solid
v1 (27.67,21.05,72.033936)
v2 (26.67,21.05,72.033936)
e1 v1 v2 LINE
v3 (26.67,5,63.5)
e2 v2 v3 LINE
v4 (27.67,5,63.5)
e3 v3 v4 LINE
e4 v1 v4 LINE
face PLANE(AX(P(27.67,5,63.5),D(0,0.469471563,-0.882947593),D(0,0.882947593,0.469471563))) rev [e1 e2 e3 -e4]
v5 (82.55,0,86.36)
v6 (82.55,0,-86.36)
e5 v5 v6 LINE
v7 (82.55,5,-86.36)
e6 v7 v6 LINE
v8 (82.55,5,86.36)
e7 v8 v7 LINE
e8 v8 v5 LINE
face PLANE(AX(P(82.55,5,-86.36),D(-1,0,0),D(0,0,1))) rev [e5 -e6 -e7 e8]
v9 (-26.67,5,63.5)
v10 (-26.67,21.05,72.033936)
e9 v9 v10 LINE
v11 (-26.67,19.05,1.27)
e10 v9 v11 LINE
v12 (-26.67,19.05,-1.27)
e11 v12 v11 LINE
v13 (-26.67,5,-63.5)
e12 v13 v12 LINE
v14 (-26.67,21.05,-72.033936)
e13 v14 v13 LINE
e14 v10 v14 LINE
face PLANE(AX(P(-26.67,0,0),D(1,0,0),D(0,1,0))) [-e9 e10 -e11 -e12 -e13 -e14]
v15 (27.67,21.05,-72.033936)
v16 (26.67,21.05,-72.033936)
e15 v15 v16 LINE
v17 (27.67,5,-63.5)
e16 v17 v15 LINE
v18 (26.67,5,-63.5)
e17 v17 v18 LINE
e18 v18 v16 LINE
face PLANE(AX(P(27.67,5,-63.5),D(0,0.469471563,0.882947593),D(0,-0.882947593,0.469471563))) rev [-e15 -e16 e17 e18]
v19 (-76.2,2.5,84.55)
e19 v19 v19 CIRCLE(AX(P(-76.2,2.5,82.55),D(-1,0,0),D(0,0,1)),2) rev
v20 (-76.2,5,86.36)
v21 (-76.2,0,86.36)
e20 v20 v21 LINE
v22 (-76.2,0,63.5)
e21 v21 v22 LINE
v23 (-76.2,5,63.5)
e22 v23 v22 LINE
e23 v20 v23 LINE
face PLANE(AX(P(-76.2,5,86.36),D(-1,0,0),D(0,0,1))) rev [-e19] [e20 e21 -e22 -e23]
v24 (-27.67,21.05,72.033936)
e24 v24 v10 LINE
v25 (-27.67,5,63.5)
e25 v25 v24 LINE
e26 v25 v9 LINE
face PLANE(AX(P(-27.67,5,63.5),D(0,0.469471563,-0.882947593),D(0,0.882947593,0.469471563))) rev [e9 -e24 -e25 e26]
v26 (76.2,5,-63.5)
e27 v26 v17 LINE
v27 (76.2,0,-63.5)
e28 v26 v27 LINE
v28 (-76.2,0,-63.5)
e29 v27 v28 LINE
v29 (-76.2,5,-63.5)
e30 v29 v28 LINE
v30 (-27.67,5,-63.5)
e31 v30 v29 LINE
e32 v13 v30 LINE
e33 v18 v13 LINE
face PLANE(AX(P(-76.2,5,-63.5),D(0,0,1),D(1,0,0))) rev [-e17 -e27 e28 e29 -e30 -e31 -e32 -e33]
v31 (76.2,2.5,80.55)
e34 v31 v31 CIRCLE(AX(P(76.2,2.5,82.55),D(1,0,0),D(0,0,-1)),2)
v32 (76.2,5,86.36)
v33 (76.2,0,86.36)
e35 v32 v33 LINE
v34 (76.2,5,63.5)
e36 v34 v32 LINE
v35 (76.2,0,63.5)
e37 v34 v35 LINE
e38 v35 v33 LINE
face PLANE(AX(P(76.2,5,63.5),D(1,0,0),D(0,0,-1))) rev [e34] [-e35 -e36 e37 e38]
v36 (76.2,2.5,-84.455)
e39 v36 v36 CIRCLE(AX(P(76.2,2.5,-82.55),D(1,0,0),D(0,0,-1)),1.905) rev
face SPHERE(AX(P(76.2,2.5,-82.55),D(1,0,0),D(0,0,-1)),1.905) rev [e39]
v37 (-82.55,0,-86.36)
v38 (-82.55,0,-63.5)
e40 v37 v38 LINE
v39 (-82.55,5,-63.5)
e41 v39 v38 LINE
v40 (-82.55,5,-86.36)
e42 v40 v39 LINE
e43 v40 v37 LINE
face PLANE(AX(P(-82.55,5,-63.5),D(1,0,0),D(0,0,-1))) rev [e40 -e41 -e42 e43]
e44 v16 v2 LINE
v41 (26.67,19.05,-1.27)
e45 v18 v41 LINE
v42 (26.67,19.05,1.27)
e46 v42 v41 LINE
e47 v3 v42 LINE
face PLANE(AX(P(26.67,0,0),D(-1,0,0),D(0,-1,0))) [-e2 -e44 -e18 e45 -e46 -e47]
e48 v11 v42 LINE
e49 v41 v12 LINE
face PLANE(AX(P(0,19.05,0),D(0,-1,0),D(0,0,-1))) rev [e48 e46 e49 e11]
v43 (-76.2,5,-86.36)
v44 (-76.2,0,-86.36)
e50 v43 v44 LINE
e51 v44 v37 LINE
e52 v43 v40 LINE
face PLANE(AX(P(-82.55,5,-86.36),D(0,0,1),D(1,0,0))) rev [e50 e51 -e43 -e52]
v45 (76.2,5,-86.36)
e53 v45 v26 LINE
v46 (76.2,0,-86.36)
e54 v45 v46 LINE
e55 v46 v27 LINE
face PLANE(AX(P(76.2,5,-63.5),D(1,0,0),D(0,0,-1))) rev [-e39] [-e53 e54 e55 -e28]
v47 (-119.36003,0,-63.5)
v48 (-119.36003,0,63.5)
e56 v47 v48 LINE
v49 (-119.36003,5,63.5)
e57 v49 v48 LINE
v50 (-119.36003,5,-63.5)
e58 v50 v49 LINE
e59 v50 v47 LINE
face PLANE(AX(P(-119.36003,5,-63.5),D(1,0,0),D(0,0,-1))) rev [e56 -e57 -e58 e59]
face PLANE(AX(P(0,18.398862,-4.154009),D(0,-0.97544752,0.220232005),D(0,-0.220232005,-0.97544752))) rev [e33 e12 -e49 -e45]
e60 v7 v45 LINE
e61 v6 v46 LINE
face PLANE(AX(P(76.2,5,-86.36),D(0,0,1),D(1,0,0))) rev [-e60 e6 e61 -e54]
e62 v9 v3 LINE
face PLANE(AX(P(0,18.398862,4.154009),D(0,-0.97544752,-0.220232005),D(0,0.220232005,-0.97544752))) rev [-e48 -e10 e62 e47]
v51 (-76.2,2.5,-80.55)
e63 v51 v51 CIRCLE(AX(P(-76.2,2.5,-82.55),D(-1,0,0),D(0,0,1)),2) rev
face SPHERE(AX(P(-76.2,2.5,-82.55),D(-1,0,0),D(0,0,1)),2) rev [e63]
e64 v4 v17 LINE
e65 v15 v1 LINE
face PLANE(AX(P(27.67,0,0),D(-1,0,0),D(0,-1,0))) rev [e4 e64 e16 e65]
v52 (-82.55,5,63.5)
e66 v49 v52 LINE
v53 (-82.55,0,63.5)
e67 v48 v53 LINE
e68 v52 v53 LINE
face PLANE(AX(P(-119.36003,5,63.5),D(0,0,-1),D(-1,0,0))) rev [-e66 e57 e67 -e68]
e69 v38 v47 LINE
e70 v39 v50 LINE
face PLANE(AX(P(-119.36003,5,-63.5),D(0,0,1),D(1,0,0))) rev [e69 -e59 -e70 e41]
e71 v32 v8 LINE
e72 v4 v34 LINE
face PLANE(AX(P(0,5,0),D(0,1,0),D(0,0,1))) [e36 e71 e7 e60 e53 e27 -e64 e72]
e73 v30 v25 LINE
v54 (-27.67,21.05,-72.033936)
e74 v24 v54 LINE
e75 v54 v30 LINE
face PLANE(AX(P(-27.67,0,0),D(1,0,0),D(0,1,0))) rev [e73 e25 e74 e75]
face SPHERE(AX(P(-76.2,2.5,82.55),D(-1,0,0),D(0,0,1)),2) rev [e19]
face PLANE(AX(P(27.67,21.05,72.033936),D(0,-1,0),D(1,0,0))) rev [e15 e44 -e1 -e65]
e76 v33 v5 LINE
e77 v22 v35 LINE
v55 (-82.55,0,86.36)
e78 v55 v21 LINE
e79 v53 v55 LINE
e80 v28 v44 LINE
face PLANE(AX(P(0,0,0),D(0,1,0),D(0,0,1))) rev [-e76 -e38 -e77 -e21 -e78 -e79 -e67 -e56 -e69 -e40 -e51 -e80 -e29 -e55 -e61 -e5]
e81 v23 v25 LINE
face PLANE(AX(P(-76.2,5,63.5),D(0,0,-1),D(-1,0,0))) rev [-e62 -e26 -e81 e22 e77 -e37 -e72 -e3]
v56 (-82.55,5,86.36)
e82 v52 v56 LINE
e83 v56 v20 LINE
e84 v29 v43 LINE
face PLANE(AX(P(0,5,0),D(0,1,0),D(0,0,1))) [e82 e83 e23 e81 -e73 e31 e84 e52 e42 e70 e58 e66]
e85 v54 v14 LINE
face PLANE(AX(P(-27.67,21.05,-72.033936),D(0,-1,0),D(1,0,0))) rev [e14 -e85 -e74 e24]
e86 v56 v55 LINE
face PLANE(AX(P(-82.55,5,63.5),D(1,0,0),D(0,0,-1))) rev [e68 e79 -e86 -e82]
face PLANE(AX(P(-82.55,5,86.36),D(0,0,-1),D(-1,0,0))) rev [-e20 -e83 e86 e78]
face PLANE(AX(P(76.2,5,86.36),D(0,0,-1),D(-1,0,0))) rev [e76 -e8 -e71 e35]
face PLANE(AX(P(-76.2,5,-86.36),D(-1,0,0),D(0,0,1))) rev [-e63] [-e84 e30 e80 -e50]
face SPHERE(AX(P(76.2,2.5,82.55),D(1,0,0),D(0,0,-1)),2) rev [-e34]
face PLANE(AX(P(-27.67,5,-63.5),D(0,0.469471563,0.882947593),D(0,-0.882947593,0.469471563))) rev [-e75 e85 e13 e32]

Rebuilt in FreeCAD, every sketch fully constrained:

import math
import FreeCAD as App
import Part
import Sketcher
Q = App.Units.Quantity

doc = App.newDocument("Part")
body = doc.addObject("PartDesign::Body", "Body")

sketch1 = body.newObject("Sketcher::SketchObject", "Sketch")
sketch1.AttachmentSupport = (doc.getObject("XZ_Plane"), [""])
sketch1.MapMode = "FlatFace"
sketch1.addGeometry([
    Part.LineSegment(App.Vector(-82.55, 63.5, 0), App.Vector(-82.55, 86.36, 0)),
    Part.LineSegment(App.Vector(-82.55, 86.36, 0), App.Vector(-76.2, 86.36, 0)),
    Part.LineSegment(App.Vector(-76.2, 86.36, 0), App.Vector(-76.2, 63.5, 0)),
    Part.LineSegment(App.Vector(-76.2, 63.5, 0), App.Vector(76.2, 63.5, 0)),
    Part.LineSegment(App.Vector(76.2, 63.5, 0), App.Vector(76.2, 86.36, 0)),
    Part.LineSegment(App.Vector(76.2, 86.36, 0), App.Vector(82.55, 86.36, 0)),
    Part.LineSegment(App.Vector(82.55, 86.36, 0), App.Vector(82.55, -86.36, 0)),
    Part.LineSegment(App.Vector(82.55, -86.36, 0), App.Vector(76.2, -86.36, 0)),
    Part.LineSegment(App.Vector(76.2, -86.36, 0), App.Vector(76.2, -63.5, 0)),
    Part.LineSegment(App.Vector(76.2, -63.5, 0), App.Vector(-76.2, -63.5, 0)),
    Part.LineSegment(App.Vector(-76.2, -63.5, 0), App.Vector(-76.2, -86.36, 0)),
    Part.LineSegment(App.Vector(-76.2, -86.36, 0), App.Vector(-82.55, -86.36, 0)),
    Part.LineSegment(App.Vector(-82.55, -86.36, 0), App.Vector(-82.55, -63.5, 0)),
    Part.LineSegment(App.Vector(-82.55, -63.5, 0), App.Vector(-119.36003, -63.5, 0)),
    Part.LineSegment(App.Vector(-119.36003, -63.5, 0), App.Vector(-119.36003, 63.5, 0)),
    Part.LineSegment(App.Vector(-119.36003, 63.5, 0), App.Vector(-82.55, 63.5, 0)),
], False)
sketch1.addConstraint([
    Sketcher.Constraint("Coincident", 0, 2, 1, 1),
    Sketcher.Constraint("Coincident", 1, 2, 2, 1),
    Sketcher.Constraint("Coincident", 2, 2, 3, 1),
    Sketcher.Constraint("Coincident", 3, 2, 4, 1),
    Sketcher.Constraint("Coincident", 4, 2, 5, 1),
    Sketcher.Constraint("Coincident", 5, 2, 6, 1),
    Sketcher.Constraint("Coincident", 6, 2, 7, 1),
    Sketcher.Constraint("Coincident", 7, 2, 8, 1),
    Sketcher.Constraint("Coincident", 8, 2, 9, 1),
    Sketcher.Constraint("Coincident", 9, 2, 10, 1),
    Sketcher.Constraint("Coincident", 10, 2, 11, 1),
    Sketcher.Constraint("Coincident", 11, 2, 12, 1),
    Sketcher.Constraint("Coincident", 12, 2, 13, 1),
    Sketcher.Constraint("Coincident", 13, 2, 14, 1),
    Sketcher.Constraint("Coincident", 14, 2, 15, 1),
    Sketcher.Constraint("Coincident", 15, 2, 0, 1),
    Sketcher.Constraint("Vertical", 0),
    Sketcher.Constraint("Horizontal", 1),
    Sketcher.Constraint("Vertical", 2),
    Sketcher.Constraint("Horizontal", 3),
    Sketcher.Constraint("Vertical", 4),
    Sketcher.Constraint("Horizontal", 5),
    Sketcher.Constraint("Vertical", 6),
    Sketcher.Constraint("Horizontal", 7),
    Sketcher.Constraint("Vertical", 8),
    Sketcher.Constraint("Horizontal", 9),
    Sketcher.Constraint("Vertical", 10),
    Sketcher.Constraint("Horizontal", 11),
    Sketcher.Constraint("Vertical", 12),
    Sketcher.Constraint("Horizontal", 13),
    Sketcher.Constraint("Vertical", 14),
    Sketcher.Constraint("Horizontal", 15),
    Sketcher.Constraint("Symmetric", 0, 2, 6, 2, -1, 1),
    Sketcher.Constraint("Symmetric", 2, 2, 8, 2, -1, 1),
    Sketcher.Constraint("Symmetric", 4, 2, 10, 2, -1, 1),
    Sketcher.Constraint("Symmetric", 1, 2, 4, 2, -2),
    Sketcher.Constraint("Symmetric", 12, 2, 15, 2, -1),
    Sketcher.Constraint("Horizontal", 9, 2, 12, 2),
    Sketcher.Constraint("DistanceX", 3, 1, 3, 2, Q("6 in")),
    Sketcher.Constraint("DistanceY", 14, 1, 14, 2, Q("5 in")),
    Sketcher.Constraint("DistanceY", 0, 1, 0, 2, Q("0.9 in")),
    Sketcher.Constraint("DistanceX", 1, 1, 1, 2, Q("0.25 in")),
    Sketcher.Constraint("DistanceX", 13, 2, 13, 1, 36.81003),
])
pad1 = body.newObject("PartDesign::Pad", "Pad")
pad1.Profile = sketch1
pad1.Length = 5
pad1.Reversed = True

sketch2 = body.newObject("Sketcher::SketchObject", "Sketch001")
sketch2.AttachmentSupport = (doc.getObject("YZ_Plane"), [""])
sketch2.MapMode = "FlatFace"
sketch2.AttachmentOffset = App.Placement(App.Vector(0, 0, -3 * 25.4), App.Rotation())
sketch2.addGeometry([
    Part.LineSegment(App.Vector(4.5, 82.55, 0), App.Vector(0.5, 82.55, 0)),
    Part.ArcOfCircle(Part.Circle(App.Vector(2.5, 82.55, 0), App.Vector(0, 0, 1), 2), math.radians(180), math.radians(360)),
], False)
sketch2.addGeometry(Part.LineSegment(App.Vector(4.5, 82.55, 0), App.Vector(0.5, 82.55, 0)), True)
sketch2.addConstraint([
    Sketcher.Constraint("Coincident", 0, 1, 1, 2),
    Sketcher.Constraint("Coincident", 1, 1, 0, 2),
    Sketcher.Constraint("Horizontal", 0),
    Sketcher.Constraint("Horizontal", 2),
    Sketcher.Constraint("Coincident", 2, 1, 0, 1),
    Sketcher.Constraint("Horizontal", 1, 3, 0, 1),
    Sketcher.Constraint("Equal", 0, 2),
    Sketcher.Constraint("DistanceY", -1, 1, 1, 3, Q("3.25 in")),
    Sketcher.Constraint("Radius", 1, 2.0),
    Sketcher.Constraint("DistanceX", -1, 1, 1, 3, 2.5),
])
groove = body.newObject("PartDesign::Groove", "Groove")
groove.Profile = sketch2
groove.ReferenceAxis = (sketch2, ["Axis0"])
groove.Angle = 360

sketch3 = body.newObject("Sketcher::SketchObject", "Sketch002")
sketch3.AttachmentSupport = (doc.getObject("YZ_Plane"), [""])
sketch3.MapMode = "FlatFace"
sketch3.AttachmentOffset = App.Placement(App.Vector(0, 0, 3 * 25.4), App.Rotation())
sketch3.addGeometry([
    Part.LineSegment(App.Vector(4.5, 82.55, 0), App.Vector(0.5, 82.55, 0)),
    Part.ArcOfCircle(Part.Circle(App.Vector(2.5, 82.55, 0), App.Vector(0, 0, 1), 2), math.radians(0), math.radians(180)),
], False)
sketch3.addGeometry(Part.LineSegment(App.Vector(0.5, 82.55, 0), App.Vector(4.5, 82.55, 0)), True)
sketch3.addConstraint([
    Sketcher.Constraint("Coincident", 0, 1, 1, 1),
    Sketcher.Constraint("Coincident", 1, 2, 0, 2),
    Sketcher.Constraint("Horizontal", 0),
    Sketcher.Constraint("Horizontal", 2),
    Sketcher.Constraint("Coincident", 2, 1, 1, 2),
    Sketcher.Constraint("Horizontal", 1, 3, 0, 1),
    Sketcher.Constraint("Equal", 0, 2),
    Sketcher.Constraint("DistanceY", -1, 1, 1, 3, Q("3.25 in")),
    Sketcher.Constraint("Radius", 1, 2.0),
    Sketcher.Constraint("DistanceX", -1, 1, 1, 3, 2.5),
])
groove2 = body.newObject("PartDesign::Groove", "Groove001")
groove2.Profile = sketch3
groove2.ReferenceAxis = (sketch3, ["Axis0"])
groove2.Angle = 360

sketch4 = body.newObject("Sketcher::SketchObject", "Sketch003")
sketch4.AttachmentSupport = (doc.getObject("XZ_Plane"), [""])
sketch4.MapMode = "FlatFace"
sketch4.AttachmentOffset = App.Placement(App.Vector(0, 0, -5), App.Rotation())
sketch4.addGeometry([
    Part.LineSegment(App.Vector(-26.67, 63.5, 0), App.Vector(26.67, 63.5, 0)),
    Part.LineSegment(App.Vector(26.67, 63.5, 0), App.Vector(26.67, -63.5, 0)),
    Part.LineSegment(App.Vector(26.67, -63.5, 0), App.Vector(-26.67, -63.5, 0)),
    Part.LineSegment(App.Vector(-26.67, -63.5, 0), App.Vector(-26.67, 63.5, 0)),
], False)
sketch4.addConstraint([
    Sketcher.Constraint("Coincident", 0, 2, 1, 1),
    Sketcher.Constraint("Coincident", 1, 2, 2, 1),
    Sketcher.Constraint("Coincident", 2, 2, 3, 1),
    Sketcher.Constraint("Coincident", 3, 2, 0, 1),
    Sketcher.Constraint("Horizontal", 0),
    Sketcher.Constraint("Vertical", 1),
    Sketcher.Constraint("Horizontal", 2),
    Sketcher.Constraint("Vertical", 3),
    Sketcher.Constraint("Symmetric", 0, 2, 2, 2, -1, 1),
    Sketcher.Constraint("DistanceY", 1, 2, 1, 1, Q("5 in")),
    Sketcher.Constraint("DistanceX", 0, 1, 0, 2, Q("2.1 in")),
])

sketch5 = body.newObject("Sketcher::SketchObject", "Sketch004")
sketch5.AttachmentSupport = (doc.getObject("XZ_Plane"), [""])
sketch5.MapMode = "FlatFace"
sketch5.AttachmentOffset = App.Placement(App.Vector(0, 0, -0.75 * 25.4), App.Rotation())
sketch5.addGeometry([
    Part.LineSegment(App.Vector(26.67, -1.27, 0), App.Vector(-26.67, -1.27, 0)),
    Part.LineSegment(App.Vector(-26.67, -1.27, 0), App.Vector(-26.67, 1.27, 0)),
    Part.LineSegment(App.Vector(-26.67, 1.27, 0), App.Vector(26.67, 1.27, 0)),
    Part.LineSegment(App.Vector(26.67, 1.27, 0), App.Vector(26.67, -1.27, 0)),
], False)
sketch5.addConstraint([
    Sketcher.Constraint("Coincident", 0, 2, 1, 1),
    Sketcher.Constraint("Coincident", 1, 2, 2, 1),
    Sketcher.Constraint("Coincident", 2, 2, 3, 1),
    Sketcher.Constraint("Coincident", 3, 2, 0, 1),
    Sketcher.Constraint("Horizontal", 0),
    Sketcher.Constraint("Vertical", 1),
    Sketcher.Constraint("Horizontal", 2),
    Sketcher.Constraint("Vertical", 3),
    Sketcher.Constraint("Symmetric", 0, 2, 2, 2, -1, 1),
    Sketcher.Constraint("DistanceX", 0, 2, 0, 1, Q("2.1 in")),
    Sketcher.Constraint("DistanceY", 1, 1, 1, 2, Q("0.1 in")),
])

additiveloft = body.newObject("PartDesign::AdditiveLoft", "AdditiveLoft")
additiveloft.Profile = sketch4
additiveloft.Sections = [sketch5]

sketch6 = body.newObject("Sketcher::SketchObject", "Sketch005")
sketch6.AttachmentSupport = (doc.getObject("YZ_Plane"), [""])
sketch6.MapMode = "FlatFace"
sketch6.AttachmentOffset = App.Placement(App.Vector(0, 0, -3 * 25.4), App.Rotation())
sketch6.addGeometry([
    Part.LineSegment(App.Vector(4.5, -82.55, 0), App.Vector(0.5, -82.55, 0)),
    Part.ArcOfCircle(Part.Circle(App.Vector(2.5, -82.55, 0), App.Vector(0, 0, 1), 2), math.radians(180), math.radians(360)),
], False)
sketch6.addGeometry(Part.LineSegment(App.Vector(4.5, -82.55, 0), App.Vector(0.5, -82.55, 0)), True)
sketch6.addConstraint([
    Sketcher.Constraint("Coincident", 0, 1, 1, 2),
    Sketcher.Constraint("Coincident", 1, 1, 0, 2),
    Sketcher.Constraint("Horizontal", 0),
    Sketcher.Constraint("Horizontal", 2),
    Sketcher.Constraint("Coincident", 2, 1, 0, 1),
    Sketcher.Constraint("Horizontal", 1, 3, 0, 1),
    Sketcher.Constraint("Equal", 0, 2),
    Sketcher.Constraint("DistanceY", 1, 3, -1, 1, Q("3.25 in")),
    Sketcher.Constraint("Radius", 1, 2.0),
    Sketcher.Constraint("DistanceX", -1, 1, 1, 3, 2.5),
])
groove3 = body.newObject("PartDesign::Groove", "Groove002")
groove3.Profile = sketch6
groove3.ReferenceAxis = (sketch6, ["Axis0"])
groove3.Angle = 360

sketch7 = body.newObject("Sketcher::SketchObject", "Sketch006")
sketch7.AttachmentSupport = (doc.getObject("YZ_Plane"), [""])
sketch7.MapMode = "FlatFace"
sketch7.AttachmentOffset = App.Placement(App.Vector(0, 0, 3 * 25.4), App.Rotation())
sketch7.addGeometry([
    Part.LineSegment(App.Vector(4.405, -82.55, 0), App.Vector(0.595, -82.55, 0)),
    Part.ArcOfCircle(Part.Circle(App.Vector(2.5, -82.55, 0), App.Vector(0, 0, 1), 1.905), math.radians(0), math.radians(180)),
], False)
sketch7.addGeometry(Part.LineSegment(App.Vector(4.405, -82.55, 0), App.Vector(0.595, -82.55, 0)), True)
sketch7.addConstraint([
    Sketcher.Constraint("Coincident", 0, 1, 1, 1),
    Sketcher.Constraint("Coincident", 1, 2, 0, 2),
    Sketcher.Constraint("Horizontal", 0),
    Sketcher.Constraint("Horizontal", 2),
    Sketcher.Constraint("Coincident", 2, 1, 0, 1),
    Sketcher.Constraint("Horizontal", 1, 3, 0, 1),
    Sketcher.Constraint("Equal", 0, 2),
    Sketcher.Constraint("Radius", 1, Q("0.075 in")),
    Sketcher.Constraint("DistanceY", 1, 3, -1, 1, Q("3.25 in")),
    Sketcher.Constraint("DistanceX", -1, 1, 1, 3, 2.5),
])
groove4 = body.newObject("PartDesign::Groove", "Groove003")
groove4.Profile = sketch7
groove4.ReferenceAxis = (sketch7, ["Axis0"])
groove4.Angle = 360

sketch8 = body.newObject("Sketcher::SketchObject", "Sketch007")
sketch8.AttachmentSupport = (doc.getObject("YZ_Plane"), [""])
sketch8.MapMode = "FlatFace"
sketch8.AttachmentOffset = App.Placement(App.Vector(0, 0, 1.05 * 25.4), App.Rotation())
sketch8.addGeometry([
    Part.LineSegment(App.Vector(5, 63.5, 0), App.Vector(5, -63.5, 0)),
    Part.LineSegment(App.Vector(5, -63.5, 0), App.Vector(21.05, -72.033936, 0)),
    Part.LineSegment(App.Vector(21.05, -72.033936, 0), App.Vector(21.05, 72.033936, 0)),
    Part.LineSegment(App.Vector(21.05, 72.033936, 0), App.Vector(5, 63.5, 0)),
], False)
sketch8.addConstraint([
    Sketcher.Constraint("Coincident", 0, 2, 1, 1),
    Sketcher.Constraint("Coincident", 1, 2, 2, 1),
    Sketcher.Constraint("Coincident", 2, 2, 3, 1),
    Sketcher.Constraint("Coincident", 3, 2, 0, 1),
    Sketcher.Constraint("Vertical", 0),
    Sketcher.Constraint("Vertical", 2),
    Sketcher.Constraint("Equal", 1, 3),
    Sketcher.Constraint("DistanceY", 0, 2, 0, 1, Q("5 in")),
    Sketcher.Constraint("Angle", 1, Q("-28 deg")),
    Sketcher.Constraint("DistanceY", 0, 2, -1, 1, Q("2.5 in")),
    Sketcher.Constraint("DistanceX", -1, 1, 0, 2, 5.0),
    Sketcher.Constraint("DistanceX", -1, 1, 1, 2, 21.05),
])
pad2 = body.newObject("PartDesign::Pad", "Pad001")
pad2.Profile = sketch8
pad2.Length = 1

sketch9 = body.newObject("Sketcher::SketchObject", "Sketch008")
sketch9.AttachmentSupport = (doc.getObject("YZ_Plane"), [""])
sketch9.MapMode = "FlatFace"
sketch9.AttachmentOffset = App.Placement(App.Vector(0, 0, -1.05 * 25.4), App.Rotation())
sketch9.addGeometry([
    Part.LineSegment(App.Vector(5, -63.5, 0), App.Vector(5, 63.5, 0)),
    Part.LineSegment(App.Vector(5, 63.5, 0), App.Vector(21.05, 72.033936, 0)),
    Part.LineSegment(App.Vector(21.05, 72.033936, 0), App.Vector(21.05, -72.033936, 0)),
    Part.LineSegment(App.Vector(21.05, -72.033936, 0), App.Vector(5, -63.5, 0)),
], False)
sketch9.addConstraint([
    Sketcher.Constraint("Coincident", 0, 2, 1, 1),
    Sketcher.Constraint("Coincident", 1, 2, 2, 1),
    Sketcher.Constraint("Coincident", 2, 2, 3, 1),
    Sketcher.Constraint("Coincident", 3, 2, 0, 1),
    Sketcher.Constraint("Vertical", 0),
    Sketcher.Constraint("Vertical", 2),
    Sketcher.Constraint("Equal", 1, 3),
    Sketcher.Constraint("DistanceY", 0, 1, 0, 2, Q("5 in")),
    Sketcher.Constraint("Angle", 1, Q("28 deg")),
    Sketcher.Constraint("DistanceY", -1, 1, 0, 2, Q("2.5 in")),
    Sketcher.Constraint("DistanceX", -1, 1, 0, 2, 5.0),
    Sketcher.Constraint("DistanceX", -1, 1, 1, 2, 21.05),
])
pad3 = body.newObject("PartDesign::Pad", "Pad002")
pad3.Profile = sketch9
pad3.Length = 1
pad3.Reversed = True

doc.recompute()
